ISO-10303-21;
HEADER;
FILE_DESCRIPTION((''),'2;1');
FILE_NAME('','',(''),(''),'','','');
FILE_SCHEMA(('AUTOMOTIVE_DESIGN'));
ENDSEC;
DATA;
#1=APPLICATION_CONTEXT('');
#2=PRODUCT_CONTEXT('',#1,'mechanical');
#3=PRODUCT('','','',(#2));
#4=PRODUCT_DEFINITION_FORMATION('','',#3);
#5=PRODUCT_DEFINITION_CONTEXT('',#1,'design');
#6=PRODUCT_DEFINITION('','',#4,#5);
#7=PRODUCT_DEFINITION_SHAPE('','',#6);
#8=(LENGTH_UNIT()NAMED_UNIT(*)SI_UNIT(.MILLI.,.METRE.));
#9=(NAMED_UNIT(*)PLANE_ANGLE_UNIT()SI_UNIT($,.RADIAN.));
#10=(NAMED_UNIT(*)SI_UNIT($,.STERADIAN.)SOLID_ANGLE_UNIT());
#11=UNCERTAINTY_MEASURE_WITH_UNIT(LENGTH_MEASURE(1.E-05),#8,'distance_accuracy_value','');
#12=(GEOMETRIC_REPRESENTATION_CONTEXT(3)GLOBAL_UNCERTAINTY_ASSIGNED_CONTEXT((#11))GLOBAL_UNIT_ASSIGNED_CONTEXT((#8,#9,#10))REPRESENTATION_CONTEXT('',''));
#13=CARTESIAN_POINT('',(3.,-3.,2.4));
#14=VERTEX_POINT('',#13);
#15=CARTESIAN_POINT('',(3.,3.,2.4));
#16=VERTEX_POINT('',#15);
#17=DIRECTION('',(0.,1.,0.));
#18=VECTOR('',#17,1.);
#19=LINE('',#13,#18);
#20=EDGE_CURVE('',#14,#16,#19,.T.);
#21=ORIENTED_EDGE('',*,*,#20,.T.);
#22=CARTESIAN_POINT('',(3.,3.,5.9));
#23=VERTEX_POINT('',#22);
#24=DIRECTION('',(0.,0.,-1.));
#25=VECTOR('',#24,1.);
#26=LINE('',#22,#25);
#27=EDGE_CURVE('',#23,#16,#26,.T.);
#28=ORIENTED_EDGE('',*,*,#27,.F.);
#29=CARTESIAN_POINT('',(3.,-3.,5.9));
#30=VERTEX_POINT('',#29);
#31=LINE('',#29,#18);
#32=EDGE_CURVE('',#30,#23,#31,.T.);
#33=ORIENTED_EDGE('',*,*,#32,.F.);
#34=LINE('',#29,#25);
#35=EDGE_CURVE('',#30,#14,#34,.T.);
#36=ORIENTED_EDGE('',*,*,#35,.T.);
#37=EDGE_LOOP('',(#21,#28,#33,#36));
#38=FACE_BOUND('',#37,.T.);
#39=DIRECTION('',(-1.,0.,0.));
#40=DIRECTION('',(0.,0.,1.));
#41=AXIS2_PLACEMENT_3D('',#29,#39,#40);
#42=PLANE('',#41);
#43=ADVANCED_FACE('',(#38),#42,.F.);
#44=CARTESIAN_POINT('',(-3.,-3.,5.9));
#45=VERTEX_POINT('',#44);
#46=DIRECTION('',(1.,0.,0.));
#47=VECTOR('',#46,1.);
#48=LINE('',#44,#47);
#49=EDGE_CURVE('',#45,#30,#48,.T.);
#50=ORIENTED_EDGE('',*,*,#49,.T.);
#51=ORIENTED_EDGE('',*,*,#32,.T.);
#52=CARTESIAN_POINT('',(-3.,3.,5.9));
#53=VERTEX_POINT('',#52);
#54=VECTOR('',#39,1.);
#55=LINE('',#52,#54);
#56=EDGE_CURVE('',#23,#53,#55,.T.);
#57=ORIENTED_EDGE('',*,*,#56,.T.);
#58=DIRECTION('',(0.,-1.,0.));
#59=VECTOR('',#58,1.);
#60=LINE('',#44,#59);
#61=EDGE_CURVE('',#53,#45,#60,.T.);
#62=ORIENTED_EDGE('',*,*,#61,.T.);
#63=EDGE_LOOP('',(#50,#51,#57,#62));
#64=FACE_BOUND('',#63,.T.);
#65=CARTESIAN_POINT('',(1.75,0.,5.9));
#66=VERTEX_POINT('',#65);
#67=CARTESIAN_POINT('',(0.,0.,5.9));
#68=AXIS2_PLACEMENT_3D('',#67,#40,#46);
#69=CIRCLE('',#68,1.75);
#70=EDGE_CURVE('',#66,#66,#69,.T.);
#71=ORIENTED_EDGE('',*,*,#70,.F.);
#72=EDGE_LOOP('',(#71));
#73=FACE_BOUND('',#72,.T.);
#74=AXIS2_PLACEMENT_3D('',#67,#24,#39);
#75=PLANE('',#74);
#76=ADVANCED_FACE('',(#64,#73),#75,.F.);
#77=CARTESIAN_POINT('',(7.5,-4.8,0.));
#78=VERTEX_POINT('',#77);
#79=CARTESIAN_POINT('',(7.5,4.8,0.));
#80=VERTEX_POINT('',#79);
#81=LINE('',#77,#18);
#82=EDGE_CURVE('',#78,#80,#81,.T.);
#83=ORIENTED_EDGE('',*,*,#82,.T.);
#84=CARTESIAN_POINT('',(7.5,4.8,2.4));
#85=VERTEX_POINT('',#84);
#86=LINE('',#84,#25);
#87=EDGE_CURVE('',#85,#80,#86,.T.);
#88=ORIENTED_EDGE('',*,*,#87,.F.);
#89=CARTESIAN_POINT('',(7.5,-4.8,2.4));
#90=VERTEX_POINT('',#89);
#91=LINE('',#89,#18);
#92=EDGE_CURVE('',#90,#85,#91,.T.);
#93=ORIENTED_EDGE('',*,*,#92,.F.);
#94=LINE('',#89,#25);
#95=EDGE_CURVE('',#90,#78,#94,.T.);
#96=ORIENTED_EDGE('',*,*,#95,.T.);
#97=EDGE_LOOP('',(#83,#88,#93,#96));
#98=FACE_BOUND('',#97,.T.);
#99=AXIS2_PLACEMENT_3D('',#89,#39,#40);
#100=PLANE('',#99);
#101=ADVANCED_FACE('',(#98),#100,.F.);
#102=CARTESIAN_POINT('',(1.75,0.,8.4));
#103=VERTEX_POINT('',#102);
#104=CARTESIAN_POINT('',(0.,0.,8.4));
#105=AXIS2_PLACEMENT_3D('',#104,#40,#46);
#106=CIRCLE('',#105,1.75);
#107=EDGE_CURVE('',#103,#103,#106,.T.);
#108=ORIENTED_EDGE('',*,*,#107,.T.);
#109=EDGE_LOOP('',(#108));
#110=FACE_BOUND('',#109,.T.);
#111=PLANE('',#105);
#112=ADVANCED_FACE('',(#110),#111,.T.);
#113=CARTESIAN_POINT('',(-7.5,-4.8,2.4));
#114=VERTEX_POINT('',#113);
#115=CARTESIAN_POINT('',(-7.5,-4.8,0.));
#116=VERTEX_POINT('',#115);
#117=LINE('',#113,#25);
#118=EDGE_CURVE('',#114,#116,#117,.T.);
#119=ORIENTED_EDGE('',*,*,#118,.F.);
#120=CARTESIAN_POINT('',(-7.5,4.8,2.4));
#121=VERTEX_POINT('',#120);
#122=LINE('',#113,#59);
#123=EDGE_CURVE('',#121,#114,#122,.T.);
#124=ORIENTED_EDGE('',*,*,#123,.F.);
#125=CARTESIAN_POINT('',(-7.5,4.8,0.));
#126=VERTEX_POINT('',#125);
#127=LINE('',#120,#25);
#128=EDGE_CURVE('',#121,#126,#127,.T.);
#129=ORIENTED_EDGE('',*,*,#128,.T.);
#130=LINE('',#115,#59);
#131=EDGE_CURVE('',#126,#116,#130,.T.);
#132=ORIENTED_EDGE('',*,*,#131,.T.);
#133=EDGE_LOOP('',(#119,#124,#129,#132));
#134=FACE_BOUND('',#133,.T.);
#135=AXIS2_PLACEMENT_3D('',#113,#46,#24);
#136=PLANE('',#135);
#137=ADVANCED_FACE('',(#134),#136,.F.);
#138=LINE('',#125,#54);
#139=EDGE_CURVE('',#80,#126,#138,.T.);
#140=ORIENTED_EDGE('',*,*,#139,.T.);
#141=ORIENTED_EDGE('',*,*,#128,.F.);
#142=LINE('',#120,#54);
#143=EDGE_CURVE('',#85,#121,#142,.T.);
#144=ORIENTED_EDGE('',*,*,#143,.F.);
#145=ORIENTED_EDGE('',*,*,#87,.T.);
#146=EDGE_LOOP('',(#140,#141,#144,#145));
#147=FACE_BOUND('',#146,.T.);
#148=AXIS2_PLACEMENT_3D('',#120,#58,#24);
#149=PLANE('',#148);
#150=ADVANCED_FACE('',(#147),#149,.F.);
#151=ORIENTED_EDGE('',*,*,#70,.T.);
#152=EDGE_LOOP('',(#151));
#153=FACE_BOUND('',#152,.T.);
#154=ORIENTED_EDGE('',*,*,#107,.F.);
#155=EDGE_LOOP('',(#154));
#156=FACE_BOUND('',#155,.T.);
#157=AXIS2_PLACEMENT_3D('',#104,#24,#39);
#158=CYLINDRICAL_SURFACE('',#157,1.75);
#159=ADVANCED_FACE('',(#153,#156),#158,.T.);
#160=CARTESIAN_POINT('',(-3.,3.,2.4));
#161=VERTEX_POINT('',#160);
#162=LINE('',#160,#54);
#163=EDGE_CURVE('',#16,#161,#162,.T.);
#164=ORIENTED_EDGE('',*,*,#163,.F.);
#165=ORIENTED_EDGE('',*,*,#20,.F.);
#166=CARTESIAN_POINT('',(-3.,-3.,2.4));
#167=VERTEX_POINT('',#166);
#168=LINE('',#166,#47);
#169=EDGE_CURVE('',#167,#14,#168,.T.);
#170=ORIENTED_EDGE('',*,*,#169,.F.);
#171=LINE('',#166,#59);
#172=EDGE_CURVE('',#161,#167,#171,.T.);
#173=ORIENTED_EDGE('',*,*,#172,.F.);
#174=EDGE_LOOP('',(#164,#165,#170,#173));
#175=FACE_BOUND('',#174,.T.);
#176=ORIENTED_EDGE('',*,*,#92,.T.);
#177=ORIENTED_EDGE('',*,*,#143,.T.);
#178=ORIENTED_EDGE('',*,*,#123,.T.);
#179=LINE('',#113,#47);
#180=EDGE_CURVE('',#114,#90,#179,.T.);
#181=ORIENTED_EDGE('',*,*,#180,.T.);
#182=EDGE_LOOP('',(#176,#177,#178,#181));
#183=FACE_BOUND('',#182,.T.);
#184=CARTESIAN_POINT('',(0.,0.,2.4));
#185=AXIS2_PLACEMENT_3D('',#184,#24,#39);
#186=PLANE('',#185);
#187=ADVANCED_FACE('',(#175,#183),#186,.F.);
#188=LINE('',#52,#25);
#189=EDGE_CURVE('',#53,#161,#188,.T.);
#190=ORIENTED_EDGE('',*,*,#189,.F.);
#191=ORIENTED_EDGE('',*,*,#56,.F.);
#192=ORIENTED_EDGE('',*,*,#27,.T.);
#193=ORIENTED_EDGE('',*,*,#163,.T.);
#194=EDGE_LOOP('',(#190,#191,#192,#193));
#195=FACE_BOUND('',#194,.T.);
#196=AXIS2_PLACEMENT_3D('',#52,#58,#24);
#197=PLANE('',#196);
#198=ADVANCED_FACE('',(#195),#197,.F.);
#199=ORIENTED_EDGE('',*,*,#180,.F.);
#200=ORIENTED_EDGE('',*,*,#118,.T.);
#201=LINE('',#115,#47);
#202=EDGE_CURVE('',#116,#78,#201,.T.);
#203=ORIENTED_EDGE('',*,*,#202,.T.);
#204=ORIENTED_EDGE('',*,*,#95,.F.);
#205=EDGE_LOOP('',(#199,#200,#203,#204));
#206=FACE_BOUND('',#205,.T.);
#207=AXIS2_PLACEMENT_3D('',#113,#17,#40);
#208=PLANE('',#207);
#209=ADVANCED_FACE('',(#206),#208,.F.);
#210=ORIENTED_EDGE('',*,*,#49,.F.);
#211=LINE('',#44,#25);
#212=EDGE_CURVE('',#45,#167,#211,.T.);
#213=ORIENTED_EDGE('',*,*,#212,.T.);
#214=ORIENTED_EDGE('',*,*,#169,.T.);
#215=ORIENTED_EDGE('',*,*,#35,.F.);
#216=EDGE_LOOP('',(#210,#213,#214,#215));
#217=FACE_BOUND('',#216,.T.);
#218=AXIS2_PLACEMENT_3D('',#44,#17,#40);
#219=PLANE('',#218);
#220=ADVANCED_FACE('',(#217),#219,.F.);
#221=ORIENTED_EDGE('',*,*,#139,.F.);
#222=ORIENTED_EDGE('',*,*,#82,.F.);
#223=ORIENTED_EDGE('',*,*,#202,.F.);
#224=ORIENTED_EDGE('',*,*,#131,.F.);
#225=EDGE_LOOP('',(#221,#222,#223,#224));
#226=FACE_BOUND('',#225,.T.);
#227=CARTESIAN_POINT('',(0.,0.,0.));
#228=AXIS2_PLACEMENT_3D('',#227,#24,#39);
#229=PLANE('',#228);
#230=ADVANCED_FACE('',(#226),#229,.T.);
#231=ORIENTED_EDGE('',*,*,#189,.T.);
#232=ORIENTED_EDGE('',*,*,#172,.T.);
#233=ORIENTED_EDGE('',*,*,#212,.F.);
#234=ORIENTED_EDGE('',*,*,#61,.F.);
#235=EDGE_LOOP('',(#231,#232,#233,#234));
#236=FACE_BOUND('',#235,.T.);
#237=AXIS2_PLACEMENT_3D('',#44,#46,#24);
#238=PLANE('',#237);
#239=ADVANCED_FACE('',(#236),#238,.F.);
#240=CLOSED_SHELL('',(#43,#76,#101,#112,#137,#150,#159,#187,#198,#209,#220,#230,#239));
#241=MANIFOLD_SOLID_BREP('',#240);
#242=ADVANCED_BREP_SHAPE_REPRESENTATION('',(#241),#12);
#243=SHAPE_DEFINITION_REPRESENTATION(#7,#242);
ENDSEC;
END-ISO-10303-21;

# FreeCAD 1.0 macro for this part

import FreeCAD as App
import Part
import Sketcher
Q = App.Units.Quantity

doc = App.newDocument("Part")
params = doc.addObject("Spreadsheet::Sheet", "Params")
for row, (alias, value) in enumerate([
    ("sketch1_width", "15 mm"),
    ("sketch1_height", "9.6 mm"),
    ("pad1_length", "2.4 mm"),
    ("sketch2_width", "6 mm"),
    ("pad2_length", "3.5 mm"),
    ("sketch3_diameter", "3.5 mm"),
    ("pad3_length", "2.5 mm"),
], start=1):
    params.set(f"A{row}", alias)
    params.set(f"B{row}", "=" + value)
    params.setAlias(f"B{row}", alias)

body = doc.addObject("PartDesign::Body", "Body")

# Sketch on XY plane
sketch1 = body.newObject("Sketcher::SketchObject", "Sketch")
sketch1.AttachmentSupport = (doc.getObject("XY_Plane"), [""])
sketch1.MapMode = "FlatFace"
sketch1.addGeometry([
    Part.LineSegment(App.Vector(-8, 5, 0), App.Vector(-8, -5, 0)),
    Part.LineSegment(App.Vector(-8, -5, 0), App.Vector(8, -5, 0)),
    Part.LineSegment(App.Vector(8, -5, 0), App.Vector(8, 5, 0)),
    Part.LineSegment(App.Vector(8, 5, 0), App.Vector(-8, 5, 0)),
], False)
sketch1.addConstraint([
    Sketcher.Constraint("Coincident", 0, 2, 1, 1),
    Sketcher.Constraint("Coincident", 1, 2, 2, 1),
    Sketcher.Constraint("Coincident", 2, 2, 3, 1),
    Sketcher.Constraint("Coincident", 3, 2, 0, 1),
    Sketcher.Constraint("Vertical", 0),
    Sketcher.Constraint("Horizontal", 1),
    Sketcher.Constraint("Vertical", 2),
    Sketcher.Constraint("Horizontal", 3),
    Sketcher.Constraint("Symmetric", 0, 2, 2, 2, -1, 1),
    Sketcher.Constraint("DistanceX", 1, 1, 1, 2, Q("15 mm")),
    Sketcher.Constraint("DistanceY", 0, 2, 0, 1, Q("9.6 mm")),
])
sketch1.setExpression("Constraints[9]", "Params.sketch1_width")
sketch1.setExpression("Constraints[10]", "Params.sketch1_height")
pad1 = body.newObject("PartDesign::Pad", "Pad")
pad1.Profile = sketch1
pad1.setExpression("Length", "Params.pad1_length")

# Sketch on XY plane
sketch2 = body.newObject("Sketcher::SketchObject", "Sketch001")
sketch2.AttachmentSupport = (doc.getObject("XY_Plane"), [""])
sketch2.MapMode = "FlatFace"
sketch2.AttachmentOffset = App.Placement(App.Vector(0, 0, 2.4), App.Rotation())
sketch2.addGeometry([
    Part.LineSegment(App.Vector(-3, 3, 0), App.Vector(-3, -3, 0)),
    Part.LineSegment(App.Vector(-3, -3, 0), App.Vector(3, -3, 0)),
    Part.LineSegment(App.Vector(3, -3, 0), App.Vector(3, 3, 0)),
    Part.LineSegment(App.Vector(3, 3, 0), App.Vector(-3, 3, 0)),
], False)
sketch2.addConstraint([
    Sketcher.Constraint("Coincident", 0, 2, 1, 1),
    Sketcher.Constraint("Coincident", 1, 2, 2, 1),
    Sketcher.Constraint("Coincident", 2, 2, 3, 1),
    Sketcher.Constraint("Coincident", 3, 2, 0, 1),
    Sketcher.Constraint("Vertical", 0),
    Sketcher.Constraint("Horizontal", 1),
    Sketcher.Constraint("Vertical", 2),
    Sketcher.Constraint("Horizontal", 3),
    Sketcher.Constraint("Symmetric", 0, 2, 2, 2, -1, 1),
    Sketcher.Constraint("Equal", 3, 0),
    Sketcher.Constraint("DistanceX", 1, 1, 1, 2, Q("6 mm")),
])
sketch2.setExpression("Constraints[10]", "Params.sketch2_width")
pad2 = body.newObject("PartDesign::Pad", "Pad001")
pad2.Profile = sketch2
pad2.setExpression("Length", "Params.pad2_length")

# Sketch on XY plane
sketch3 = body.newObject("Sketcher::SketchObject", "Sketch002")
sketch3.AttachmentSupport = (doc.getObject("XY_Plane"), [""])
sketch3.MapMode = "FlatFace"
sketch3.AttachmentOffset = App.Placement(App.Vector(0, 0, 5.9), App.Rotation())
sketch3.addGeometry(Part.Circle(App.Vector(0, 0, 0), App.Vector(0, 0, 1), 1.8), False)
sketch3.addConstraint([
    Sketcher.Constraint("Coincident", 0, 3, -1, 1),
    Sketcher.Constraint("Diameter", 0, Q("3.5 mm")),
])
sketch3.setExpression("Constraints[1]", "Params.sketch3_diameter")
pad3 = body.newObject("PartDesign::Pad", "Pad002")
pad3.Profile = sketch3
pad3.setExpression("Length", "Params.pad3_length")

doc.recompute()
